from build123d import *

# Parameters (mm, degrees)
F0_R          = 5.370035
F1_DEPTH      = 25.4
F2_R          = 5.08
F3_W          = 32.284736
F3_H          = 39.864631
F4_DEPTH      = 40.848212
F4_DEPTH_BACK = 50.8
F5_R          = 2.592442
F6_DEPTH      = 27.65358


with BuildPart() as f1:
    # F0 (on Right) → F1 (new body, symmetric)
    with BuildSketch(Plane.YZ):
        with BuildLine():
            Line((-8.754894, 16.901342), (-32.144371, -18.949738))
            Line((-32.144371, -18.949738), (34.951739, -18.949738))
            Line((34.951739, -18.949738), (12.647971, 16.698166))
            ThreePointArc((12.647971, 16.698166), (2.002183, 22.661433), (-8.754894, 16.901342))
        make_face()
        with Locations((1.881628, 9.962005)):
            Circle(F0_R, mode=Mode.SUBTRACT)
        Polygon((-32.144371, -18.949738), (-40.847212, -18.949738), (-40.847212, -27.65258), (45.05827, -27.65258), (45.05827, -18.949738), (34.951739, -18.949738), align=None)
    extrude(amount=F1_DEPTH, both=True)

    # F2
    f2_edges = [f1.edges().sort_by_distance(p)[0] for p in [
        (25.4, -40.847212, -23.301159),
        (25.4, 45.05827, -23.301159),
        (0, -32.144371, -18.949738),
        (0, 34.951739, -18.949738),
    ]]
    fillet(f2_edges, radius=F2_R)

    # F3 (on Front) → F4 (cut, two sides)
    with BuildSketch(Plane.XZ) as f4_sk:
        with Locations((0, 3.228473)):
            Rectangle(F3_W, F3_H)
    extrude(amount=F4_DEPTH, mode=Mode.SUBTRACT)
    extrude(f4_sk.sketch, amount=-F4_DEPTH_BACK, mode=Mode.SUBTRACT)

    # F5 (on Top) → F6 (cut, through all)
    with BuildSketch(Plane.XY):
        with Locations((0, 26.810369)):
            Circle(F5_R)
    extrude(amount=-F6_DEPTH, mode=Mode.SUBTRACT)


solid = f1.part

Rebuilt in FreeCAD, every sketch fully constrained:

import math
import FreeCAD as App
import Part
import Sketcher
Q = App.Units.Quantity


def edges_at(feature, points):
    """Names of the edges that pass closest to the given points."""
    edges = feature.Shape.Edges
    near = lambda p: min(range(len(edges)), key=lambda i: edges[i].distToShape(Part.Vertex(*p))[0])
    return sorted({f"Edge{near(p) + 1}" for p in points})


def add_polygon(sketch, points):
    """Adds a closed chain of lines whose ends are joined by coincident constraints."""
    first, n = sketch.GeometryCount, len(points)
    for a, b in zip(points, points[1:] + points[:1]):
        sketch.addGeometry(Part.LineSegment(App.Vector(*a, 0), App.Vector(*b, 0)), False)
    for i in range(n):
        sketch.addConstraint(Sketcher.Constraint("Coincident", first + i, 2, first + (i + 1) % n, 1))

doc = App.newDocument("Part")
body = doc.addObject("PartDesign::Body", "Body")

# Sketch on YZ plane
sketch1 = body.newObject("Sketcher::SketchObject", "Sketch")
sketch1.AttachmentSupport = (doc.getObject("YZ_Plane"), [""])
sketch1.MapMode = "FlatFace"
sketch1.addGeometry([
    Part.LineSegment(App.Vector(-9, 17, 0), App.Vector(-32, -19, 0)),  # 0
    Part.LineSegment(App.Vector(-32, -19, 0), App.Vector(-41, -19, 0)),  # 1
    Part.LineSegment(App.Vector(-41, -19, 0), App.Vector(-41, -28, 0)),  # 2
    Part.LineSegment(App.Vector(-41, -28, 0), App.Vector(45, -28, 0)),  # 3
    Part.LineSegment(App.Vector(45, -28, 0), App.Vector(45, -19, 0)),  # 4
    Part.LineSegment(App.Vector(45, -19, 0), App.Vector(35, -19, 0)),  # 5
    Part.LineSegment(App.Vector(35, -19, 0), App.Vector(13, 17, 0)),  # 6
    Part.ArcOfCircle(Part.Circle(App.Vector(2, 10, 0), App.Vector(0, 0, 1), 13), math.radians(32), math.radians(147)),  # 7
    Part.Circle(App.Vector(2, 10, 0), App.Vector(0, 0, 1), 5),  # 8
], False)
sketch1.addConstraint([
    Sketcher.Constraint("Coincident", 0, 2, 1, 1),
    Sketcher.Constraint("Coincident", 1, 2, 2, 1),
    Sketcher.Constraint("Coincident", 2, 2, 3, 1),
    Sketcher.Constraint("Coincident", 3, 2, 4, 1),
    Sketcher.Constraint("Coincident", 4, 2, 5, 1),
    Sketcher.Constraint("Coincident", 5, 2, 6, 1),
    Sketcher.Constraint("Tangent", 6, 2, 7, 1),
    Sketcher.Constraint("Tangent", 7, 2, 0, 1),
    Sketcher.Constraint("Horizontal", 1),
    Sketcher.Constraint("Vertical", 2),
    Sketcher.Constraint("Horizontal", 3),
    Sketcher.Constraint("Vertical", 4),
    Sketcher.Constraint("Horizontal", 5),
    Sketcher.Constraint("Coincident", 8, 3, 7, 3),
    Sketcher.Constraint("Horizontal", 1, 2, 4, 2),
    Sketcher.Constraint("Equal", 1, 2),
    Sketcher.Constraint("Radius", 7, Q("0.5 in")),
    Sketcher.Constraint("Diameter", 8, 10.74007),
    Sketcher.Constraint("DistanceX", 1, 2, 1, 1, 8.702841),
    Sketcher.Constraint("DistanceX", 5, 2, 5, 1, 10.106531),
    Sketcher.Constraint("DistanceX", 0, 2, 8, 3, 34.025999),
    Sketcher.Constraint("DistanceX", 6, 2, 4, 2, 32.410299),
    Sketcher.Constraint("Distance", 6, 42.05034),
    Sketcher.Constraint("DistanceX", -1, 1, 7, 3, 1.881628),
    Sketcher.Constraint("DistanceY", 0, 2, -1, 1, 18.949738),
])
pad1 = body.newObject("PartDesign::Pad", "Pad")
pad1.Profile = sketch1
pad1.Length = Q("2 in")
pad1.Midplane = True
doc.recompute()

fillet = body.newObject("PartDesign::Fillet", "Fillet")
fillet.Base = (pad1, edges_at(pad1, [
    (25.4, -40.847, -23.301),
    (25.4, 45.058, -23.301),
    (0, -32.144, -18.95),
    (0, 34.952, -18.95),
]))
fillet.Radius = Q("0.2 in")

# Sketch on XZ plane
sketch2 = body.newObject("Sketcher::SketchObject", "Sketch001")
sketch2.AttachmentSupport = (doc.getObject("XZ_Plane"), [""])
sketch2.MapMode = "FlatFace"
add_polygon(sketch2, [(-16, 23), (-16, -17), (16, -17), (16, 23)])  # lines 0-3
sketch2.addConstraint([
    Sketcher.Constraint("Vertical", 0),
    Sketcher.Constraint("Horizontal", 1),
    Sketcher.Constraint("Vertical", 2),
    Sketcher.Constraint("Horizontal", 3),
    Sketcher.Constraint("DistanceY", 0, 2, 0, 1, 39.864631),
    Sketcher.Constraint("DistanceX", 1, 1, 1, 2, 32.284736),
    Sketcher.Constraint("DistanceX", 0, 2, -1, 1, 16.142368),
    Sketcher.Constraint("DistanceY", -1, 1, 2, 2, 23.160788),
])
pocket1 = body.newObject("PartDesign::Pocket", "Pocket")
pocket1.Profile = sketch2
pocket1.Type = "ThroughAll"
pocket1.Midplane = True

# Sketch on XY plane
sketch3 = body.newObject("Sketcher::SketchObject", "Sketch002")
sketch3.AttachmentSupport = (doc.getObject("XY_Plane"), [""])
sketch3.MapMode = "FlatFace"
sketch3.addGeometry(Part.Circle(App.Vector(0, 26.8, 0), App.Vector(0, 0, 1), 2.6), False)
sketch3.addConstraint([
    Sketcher.Constraint("PointOnObject", 0, 3, -2),
    Sketcher.Constraint("Diameter", 0, 5.184884),
    Sketcher.Constraint("DistanceY", -1, 1, 0, 3, 26.810369),
])
pocket2 = body.newObject("PartDesign::Pocket", "Pocket001")
pocket2.Profile = sketch3
pocket2.Type = "ThroughAll"

doc.recompute()
